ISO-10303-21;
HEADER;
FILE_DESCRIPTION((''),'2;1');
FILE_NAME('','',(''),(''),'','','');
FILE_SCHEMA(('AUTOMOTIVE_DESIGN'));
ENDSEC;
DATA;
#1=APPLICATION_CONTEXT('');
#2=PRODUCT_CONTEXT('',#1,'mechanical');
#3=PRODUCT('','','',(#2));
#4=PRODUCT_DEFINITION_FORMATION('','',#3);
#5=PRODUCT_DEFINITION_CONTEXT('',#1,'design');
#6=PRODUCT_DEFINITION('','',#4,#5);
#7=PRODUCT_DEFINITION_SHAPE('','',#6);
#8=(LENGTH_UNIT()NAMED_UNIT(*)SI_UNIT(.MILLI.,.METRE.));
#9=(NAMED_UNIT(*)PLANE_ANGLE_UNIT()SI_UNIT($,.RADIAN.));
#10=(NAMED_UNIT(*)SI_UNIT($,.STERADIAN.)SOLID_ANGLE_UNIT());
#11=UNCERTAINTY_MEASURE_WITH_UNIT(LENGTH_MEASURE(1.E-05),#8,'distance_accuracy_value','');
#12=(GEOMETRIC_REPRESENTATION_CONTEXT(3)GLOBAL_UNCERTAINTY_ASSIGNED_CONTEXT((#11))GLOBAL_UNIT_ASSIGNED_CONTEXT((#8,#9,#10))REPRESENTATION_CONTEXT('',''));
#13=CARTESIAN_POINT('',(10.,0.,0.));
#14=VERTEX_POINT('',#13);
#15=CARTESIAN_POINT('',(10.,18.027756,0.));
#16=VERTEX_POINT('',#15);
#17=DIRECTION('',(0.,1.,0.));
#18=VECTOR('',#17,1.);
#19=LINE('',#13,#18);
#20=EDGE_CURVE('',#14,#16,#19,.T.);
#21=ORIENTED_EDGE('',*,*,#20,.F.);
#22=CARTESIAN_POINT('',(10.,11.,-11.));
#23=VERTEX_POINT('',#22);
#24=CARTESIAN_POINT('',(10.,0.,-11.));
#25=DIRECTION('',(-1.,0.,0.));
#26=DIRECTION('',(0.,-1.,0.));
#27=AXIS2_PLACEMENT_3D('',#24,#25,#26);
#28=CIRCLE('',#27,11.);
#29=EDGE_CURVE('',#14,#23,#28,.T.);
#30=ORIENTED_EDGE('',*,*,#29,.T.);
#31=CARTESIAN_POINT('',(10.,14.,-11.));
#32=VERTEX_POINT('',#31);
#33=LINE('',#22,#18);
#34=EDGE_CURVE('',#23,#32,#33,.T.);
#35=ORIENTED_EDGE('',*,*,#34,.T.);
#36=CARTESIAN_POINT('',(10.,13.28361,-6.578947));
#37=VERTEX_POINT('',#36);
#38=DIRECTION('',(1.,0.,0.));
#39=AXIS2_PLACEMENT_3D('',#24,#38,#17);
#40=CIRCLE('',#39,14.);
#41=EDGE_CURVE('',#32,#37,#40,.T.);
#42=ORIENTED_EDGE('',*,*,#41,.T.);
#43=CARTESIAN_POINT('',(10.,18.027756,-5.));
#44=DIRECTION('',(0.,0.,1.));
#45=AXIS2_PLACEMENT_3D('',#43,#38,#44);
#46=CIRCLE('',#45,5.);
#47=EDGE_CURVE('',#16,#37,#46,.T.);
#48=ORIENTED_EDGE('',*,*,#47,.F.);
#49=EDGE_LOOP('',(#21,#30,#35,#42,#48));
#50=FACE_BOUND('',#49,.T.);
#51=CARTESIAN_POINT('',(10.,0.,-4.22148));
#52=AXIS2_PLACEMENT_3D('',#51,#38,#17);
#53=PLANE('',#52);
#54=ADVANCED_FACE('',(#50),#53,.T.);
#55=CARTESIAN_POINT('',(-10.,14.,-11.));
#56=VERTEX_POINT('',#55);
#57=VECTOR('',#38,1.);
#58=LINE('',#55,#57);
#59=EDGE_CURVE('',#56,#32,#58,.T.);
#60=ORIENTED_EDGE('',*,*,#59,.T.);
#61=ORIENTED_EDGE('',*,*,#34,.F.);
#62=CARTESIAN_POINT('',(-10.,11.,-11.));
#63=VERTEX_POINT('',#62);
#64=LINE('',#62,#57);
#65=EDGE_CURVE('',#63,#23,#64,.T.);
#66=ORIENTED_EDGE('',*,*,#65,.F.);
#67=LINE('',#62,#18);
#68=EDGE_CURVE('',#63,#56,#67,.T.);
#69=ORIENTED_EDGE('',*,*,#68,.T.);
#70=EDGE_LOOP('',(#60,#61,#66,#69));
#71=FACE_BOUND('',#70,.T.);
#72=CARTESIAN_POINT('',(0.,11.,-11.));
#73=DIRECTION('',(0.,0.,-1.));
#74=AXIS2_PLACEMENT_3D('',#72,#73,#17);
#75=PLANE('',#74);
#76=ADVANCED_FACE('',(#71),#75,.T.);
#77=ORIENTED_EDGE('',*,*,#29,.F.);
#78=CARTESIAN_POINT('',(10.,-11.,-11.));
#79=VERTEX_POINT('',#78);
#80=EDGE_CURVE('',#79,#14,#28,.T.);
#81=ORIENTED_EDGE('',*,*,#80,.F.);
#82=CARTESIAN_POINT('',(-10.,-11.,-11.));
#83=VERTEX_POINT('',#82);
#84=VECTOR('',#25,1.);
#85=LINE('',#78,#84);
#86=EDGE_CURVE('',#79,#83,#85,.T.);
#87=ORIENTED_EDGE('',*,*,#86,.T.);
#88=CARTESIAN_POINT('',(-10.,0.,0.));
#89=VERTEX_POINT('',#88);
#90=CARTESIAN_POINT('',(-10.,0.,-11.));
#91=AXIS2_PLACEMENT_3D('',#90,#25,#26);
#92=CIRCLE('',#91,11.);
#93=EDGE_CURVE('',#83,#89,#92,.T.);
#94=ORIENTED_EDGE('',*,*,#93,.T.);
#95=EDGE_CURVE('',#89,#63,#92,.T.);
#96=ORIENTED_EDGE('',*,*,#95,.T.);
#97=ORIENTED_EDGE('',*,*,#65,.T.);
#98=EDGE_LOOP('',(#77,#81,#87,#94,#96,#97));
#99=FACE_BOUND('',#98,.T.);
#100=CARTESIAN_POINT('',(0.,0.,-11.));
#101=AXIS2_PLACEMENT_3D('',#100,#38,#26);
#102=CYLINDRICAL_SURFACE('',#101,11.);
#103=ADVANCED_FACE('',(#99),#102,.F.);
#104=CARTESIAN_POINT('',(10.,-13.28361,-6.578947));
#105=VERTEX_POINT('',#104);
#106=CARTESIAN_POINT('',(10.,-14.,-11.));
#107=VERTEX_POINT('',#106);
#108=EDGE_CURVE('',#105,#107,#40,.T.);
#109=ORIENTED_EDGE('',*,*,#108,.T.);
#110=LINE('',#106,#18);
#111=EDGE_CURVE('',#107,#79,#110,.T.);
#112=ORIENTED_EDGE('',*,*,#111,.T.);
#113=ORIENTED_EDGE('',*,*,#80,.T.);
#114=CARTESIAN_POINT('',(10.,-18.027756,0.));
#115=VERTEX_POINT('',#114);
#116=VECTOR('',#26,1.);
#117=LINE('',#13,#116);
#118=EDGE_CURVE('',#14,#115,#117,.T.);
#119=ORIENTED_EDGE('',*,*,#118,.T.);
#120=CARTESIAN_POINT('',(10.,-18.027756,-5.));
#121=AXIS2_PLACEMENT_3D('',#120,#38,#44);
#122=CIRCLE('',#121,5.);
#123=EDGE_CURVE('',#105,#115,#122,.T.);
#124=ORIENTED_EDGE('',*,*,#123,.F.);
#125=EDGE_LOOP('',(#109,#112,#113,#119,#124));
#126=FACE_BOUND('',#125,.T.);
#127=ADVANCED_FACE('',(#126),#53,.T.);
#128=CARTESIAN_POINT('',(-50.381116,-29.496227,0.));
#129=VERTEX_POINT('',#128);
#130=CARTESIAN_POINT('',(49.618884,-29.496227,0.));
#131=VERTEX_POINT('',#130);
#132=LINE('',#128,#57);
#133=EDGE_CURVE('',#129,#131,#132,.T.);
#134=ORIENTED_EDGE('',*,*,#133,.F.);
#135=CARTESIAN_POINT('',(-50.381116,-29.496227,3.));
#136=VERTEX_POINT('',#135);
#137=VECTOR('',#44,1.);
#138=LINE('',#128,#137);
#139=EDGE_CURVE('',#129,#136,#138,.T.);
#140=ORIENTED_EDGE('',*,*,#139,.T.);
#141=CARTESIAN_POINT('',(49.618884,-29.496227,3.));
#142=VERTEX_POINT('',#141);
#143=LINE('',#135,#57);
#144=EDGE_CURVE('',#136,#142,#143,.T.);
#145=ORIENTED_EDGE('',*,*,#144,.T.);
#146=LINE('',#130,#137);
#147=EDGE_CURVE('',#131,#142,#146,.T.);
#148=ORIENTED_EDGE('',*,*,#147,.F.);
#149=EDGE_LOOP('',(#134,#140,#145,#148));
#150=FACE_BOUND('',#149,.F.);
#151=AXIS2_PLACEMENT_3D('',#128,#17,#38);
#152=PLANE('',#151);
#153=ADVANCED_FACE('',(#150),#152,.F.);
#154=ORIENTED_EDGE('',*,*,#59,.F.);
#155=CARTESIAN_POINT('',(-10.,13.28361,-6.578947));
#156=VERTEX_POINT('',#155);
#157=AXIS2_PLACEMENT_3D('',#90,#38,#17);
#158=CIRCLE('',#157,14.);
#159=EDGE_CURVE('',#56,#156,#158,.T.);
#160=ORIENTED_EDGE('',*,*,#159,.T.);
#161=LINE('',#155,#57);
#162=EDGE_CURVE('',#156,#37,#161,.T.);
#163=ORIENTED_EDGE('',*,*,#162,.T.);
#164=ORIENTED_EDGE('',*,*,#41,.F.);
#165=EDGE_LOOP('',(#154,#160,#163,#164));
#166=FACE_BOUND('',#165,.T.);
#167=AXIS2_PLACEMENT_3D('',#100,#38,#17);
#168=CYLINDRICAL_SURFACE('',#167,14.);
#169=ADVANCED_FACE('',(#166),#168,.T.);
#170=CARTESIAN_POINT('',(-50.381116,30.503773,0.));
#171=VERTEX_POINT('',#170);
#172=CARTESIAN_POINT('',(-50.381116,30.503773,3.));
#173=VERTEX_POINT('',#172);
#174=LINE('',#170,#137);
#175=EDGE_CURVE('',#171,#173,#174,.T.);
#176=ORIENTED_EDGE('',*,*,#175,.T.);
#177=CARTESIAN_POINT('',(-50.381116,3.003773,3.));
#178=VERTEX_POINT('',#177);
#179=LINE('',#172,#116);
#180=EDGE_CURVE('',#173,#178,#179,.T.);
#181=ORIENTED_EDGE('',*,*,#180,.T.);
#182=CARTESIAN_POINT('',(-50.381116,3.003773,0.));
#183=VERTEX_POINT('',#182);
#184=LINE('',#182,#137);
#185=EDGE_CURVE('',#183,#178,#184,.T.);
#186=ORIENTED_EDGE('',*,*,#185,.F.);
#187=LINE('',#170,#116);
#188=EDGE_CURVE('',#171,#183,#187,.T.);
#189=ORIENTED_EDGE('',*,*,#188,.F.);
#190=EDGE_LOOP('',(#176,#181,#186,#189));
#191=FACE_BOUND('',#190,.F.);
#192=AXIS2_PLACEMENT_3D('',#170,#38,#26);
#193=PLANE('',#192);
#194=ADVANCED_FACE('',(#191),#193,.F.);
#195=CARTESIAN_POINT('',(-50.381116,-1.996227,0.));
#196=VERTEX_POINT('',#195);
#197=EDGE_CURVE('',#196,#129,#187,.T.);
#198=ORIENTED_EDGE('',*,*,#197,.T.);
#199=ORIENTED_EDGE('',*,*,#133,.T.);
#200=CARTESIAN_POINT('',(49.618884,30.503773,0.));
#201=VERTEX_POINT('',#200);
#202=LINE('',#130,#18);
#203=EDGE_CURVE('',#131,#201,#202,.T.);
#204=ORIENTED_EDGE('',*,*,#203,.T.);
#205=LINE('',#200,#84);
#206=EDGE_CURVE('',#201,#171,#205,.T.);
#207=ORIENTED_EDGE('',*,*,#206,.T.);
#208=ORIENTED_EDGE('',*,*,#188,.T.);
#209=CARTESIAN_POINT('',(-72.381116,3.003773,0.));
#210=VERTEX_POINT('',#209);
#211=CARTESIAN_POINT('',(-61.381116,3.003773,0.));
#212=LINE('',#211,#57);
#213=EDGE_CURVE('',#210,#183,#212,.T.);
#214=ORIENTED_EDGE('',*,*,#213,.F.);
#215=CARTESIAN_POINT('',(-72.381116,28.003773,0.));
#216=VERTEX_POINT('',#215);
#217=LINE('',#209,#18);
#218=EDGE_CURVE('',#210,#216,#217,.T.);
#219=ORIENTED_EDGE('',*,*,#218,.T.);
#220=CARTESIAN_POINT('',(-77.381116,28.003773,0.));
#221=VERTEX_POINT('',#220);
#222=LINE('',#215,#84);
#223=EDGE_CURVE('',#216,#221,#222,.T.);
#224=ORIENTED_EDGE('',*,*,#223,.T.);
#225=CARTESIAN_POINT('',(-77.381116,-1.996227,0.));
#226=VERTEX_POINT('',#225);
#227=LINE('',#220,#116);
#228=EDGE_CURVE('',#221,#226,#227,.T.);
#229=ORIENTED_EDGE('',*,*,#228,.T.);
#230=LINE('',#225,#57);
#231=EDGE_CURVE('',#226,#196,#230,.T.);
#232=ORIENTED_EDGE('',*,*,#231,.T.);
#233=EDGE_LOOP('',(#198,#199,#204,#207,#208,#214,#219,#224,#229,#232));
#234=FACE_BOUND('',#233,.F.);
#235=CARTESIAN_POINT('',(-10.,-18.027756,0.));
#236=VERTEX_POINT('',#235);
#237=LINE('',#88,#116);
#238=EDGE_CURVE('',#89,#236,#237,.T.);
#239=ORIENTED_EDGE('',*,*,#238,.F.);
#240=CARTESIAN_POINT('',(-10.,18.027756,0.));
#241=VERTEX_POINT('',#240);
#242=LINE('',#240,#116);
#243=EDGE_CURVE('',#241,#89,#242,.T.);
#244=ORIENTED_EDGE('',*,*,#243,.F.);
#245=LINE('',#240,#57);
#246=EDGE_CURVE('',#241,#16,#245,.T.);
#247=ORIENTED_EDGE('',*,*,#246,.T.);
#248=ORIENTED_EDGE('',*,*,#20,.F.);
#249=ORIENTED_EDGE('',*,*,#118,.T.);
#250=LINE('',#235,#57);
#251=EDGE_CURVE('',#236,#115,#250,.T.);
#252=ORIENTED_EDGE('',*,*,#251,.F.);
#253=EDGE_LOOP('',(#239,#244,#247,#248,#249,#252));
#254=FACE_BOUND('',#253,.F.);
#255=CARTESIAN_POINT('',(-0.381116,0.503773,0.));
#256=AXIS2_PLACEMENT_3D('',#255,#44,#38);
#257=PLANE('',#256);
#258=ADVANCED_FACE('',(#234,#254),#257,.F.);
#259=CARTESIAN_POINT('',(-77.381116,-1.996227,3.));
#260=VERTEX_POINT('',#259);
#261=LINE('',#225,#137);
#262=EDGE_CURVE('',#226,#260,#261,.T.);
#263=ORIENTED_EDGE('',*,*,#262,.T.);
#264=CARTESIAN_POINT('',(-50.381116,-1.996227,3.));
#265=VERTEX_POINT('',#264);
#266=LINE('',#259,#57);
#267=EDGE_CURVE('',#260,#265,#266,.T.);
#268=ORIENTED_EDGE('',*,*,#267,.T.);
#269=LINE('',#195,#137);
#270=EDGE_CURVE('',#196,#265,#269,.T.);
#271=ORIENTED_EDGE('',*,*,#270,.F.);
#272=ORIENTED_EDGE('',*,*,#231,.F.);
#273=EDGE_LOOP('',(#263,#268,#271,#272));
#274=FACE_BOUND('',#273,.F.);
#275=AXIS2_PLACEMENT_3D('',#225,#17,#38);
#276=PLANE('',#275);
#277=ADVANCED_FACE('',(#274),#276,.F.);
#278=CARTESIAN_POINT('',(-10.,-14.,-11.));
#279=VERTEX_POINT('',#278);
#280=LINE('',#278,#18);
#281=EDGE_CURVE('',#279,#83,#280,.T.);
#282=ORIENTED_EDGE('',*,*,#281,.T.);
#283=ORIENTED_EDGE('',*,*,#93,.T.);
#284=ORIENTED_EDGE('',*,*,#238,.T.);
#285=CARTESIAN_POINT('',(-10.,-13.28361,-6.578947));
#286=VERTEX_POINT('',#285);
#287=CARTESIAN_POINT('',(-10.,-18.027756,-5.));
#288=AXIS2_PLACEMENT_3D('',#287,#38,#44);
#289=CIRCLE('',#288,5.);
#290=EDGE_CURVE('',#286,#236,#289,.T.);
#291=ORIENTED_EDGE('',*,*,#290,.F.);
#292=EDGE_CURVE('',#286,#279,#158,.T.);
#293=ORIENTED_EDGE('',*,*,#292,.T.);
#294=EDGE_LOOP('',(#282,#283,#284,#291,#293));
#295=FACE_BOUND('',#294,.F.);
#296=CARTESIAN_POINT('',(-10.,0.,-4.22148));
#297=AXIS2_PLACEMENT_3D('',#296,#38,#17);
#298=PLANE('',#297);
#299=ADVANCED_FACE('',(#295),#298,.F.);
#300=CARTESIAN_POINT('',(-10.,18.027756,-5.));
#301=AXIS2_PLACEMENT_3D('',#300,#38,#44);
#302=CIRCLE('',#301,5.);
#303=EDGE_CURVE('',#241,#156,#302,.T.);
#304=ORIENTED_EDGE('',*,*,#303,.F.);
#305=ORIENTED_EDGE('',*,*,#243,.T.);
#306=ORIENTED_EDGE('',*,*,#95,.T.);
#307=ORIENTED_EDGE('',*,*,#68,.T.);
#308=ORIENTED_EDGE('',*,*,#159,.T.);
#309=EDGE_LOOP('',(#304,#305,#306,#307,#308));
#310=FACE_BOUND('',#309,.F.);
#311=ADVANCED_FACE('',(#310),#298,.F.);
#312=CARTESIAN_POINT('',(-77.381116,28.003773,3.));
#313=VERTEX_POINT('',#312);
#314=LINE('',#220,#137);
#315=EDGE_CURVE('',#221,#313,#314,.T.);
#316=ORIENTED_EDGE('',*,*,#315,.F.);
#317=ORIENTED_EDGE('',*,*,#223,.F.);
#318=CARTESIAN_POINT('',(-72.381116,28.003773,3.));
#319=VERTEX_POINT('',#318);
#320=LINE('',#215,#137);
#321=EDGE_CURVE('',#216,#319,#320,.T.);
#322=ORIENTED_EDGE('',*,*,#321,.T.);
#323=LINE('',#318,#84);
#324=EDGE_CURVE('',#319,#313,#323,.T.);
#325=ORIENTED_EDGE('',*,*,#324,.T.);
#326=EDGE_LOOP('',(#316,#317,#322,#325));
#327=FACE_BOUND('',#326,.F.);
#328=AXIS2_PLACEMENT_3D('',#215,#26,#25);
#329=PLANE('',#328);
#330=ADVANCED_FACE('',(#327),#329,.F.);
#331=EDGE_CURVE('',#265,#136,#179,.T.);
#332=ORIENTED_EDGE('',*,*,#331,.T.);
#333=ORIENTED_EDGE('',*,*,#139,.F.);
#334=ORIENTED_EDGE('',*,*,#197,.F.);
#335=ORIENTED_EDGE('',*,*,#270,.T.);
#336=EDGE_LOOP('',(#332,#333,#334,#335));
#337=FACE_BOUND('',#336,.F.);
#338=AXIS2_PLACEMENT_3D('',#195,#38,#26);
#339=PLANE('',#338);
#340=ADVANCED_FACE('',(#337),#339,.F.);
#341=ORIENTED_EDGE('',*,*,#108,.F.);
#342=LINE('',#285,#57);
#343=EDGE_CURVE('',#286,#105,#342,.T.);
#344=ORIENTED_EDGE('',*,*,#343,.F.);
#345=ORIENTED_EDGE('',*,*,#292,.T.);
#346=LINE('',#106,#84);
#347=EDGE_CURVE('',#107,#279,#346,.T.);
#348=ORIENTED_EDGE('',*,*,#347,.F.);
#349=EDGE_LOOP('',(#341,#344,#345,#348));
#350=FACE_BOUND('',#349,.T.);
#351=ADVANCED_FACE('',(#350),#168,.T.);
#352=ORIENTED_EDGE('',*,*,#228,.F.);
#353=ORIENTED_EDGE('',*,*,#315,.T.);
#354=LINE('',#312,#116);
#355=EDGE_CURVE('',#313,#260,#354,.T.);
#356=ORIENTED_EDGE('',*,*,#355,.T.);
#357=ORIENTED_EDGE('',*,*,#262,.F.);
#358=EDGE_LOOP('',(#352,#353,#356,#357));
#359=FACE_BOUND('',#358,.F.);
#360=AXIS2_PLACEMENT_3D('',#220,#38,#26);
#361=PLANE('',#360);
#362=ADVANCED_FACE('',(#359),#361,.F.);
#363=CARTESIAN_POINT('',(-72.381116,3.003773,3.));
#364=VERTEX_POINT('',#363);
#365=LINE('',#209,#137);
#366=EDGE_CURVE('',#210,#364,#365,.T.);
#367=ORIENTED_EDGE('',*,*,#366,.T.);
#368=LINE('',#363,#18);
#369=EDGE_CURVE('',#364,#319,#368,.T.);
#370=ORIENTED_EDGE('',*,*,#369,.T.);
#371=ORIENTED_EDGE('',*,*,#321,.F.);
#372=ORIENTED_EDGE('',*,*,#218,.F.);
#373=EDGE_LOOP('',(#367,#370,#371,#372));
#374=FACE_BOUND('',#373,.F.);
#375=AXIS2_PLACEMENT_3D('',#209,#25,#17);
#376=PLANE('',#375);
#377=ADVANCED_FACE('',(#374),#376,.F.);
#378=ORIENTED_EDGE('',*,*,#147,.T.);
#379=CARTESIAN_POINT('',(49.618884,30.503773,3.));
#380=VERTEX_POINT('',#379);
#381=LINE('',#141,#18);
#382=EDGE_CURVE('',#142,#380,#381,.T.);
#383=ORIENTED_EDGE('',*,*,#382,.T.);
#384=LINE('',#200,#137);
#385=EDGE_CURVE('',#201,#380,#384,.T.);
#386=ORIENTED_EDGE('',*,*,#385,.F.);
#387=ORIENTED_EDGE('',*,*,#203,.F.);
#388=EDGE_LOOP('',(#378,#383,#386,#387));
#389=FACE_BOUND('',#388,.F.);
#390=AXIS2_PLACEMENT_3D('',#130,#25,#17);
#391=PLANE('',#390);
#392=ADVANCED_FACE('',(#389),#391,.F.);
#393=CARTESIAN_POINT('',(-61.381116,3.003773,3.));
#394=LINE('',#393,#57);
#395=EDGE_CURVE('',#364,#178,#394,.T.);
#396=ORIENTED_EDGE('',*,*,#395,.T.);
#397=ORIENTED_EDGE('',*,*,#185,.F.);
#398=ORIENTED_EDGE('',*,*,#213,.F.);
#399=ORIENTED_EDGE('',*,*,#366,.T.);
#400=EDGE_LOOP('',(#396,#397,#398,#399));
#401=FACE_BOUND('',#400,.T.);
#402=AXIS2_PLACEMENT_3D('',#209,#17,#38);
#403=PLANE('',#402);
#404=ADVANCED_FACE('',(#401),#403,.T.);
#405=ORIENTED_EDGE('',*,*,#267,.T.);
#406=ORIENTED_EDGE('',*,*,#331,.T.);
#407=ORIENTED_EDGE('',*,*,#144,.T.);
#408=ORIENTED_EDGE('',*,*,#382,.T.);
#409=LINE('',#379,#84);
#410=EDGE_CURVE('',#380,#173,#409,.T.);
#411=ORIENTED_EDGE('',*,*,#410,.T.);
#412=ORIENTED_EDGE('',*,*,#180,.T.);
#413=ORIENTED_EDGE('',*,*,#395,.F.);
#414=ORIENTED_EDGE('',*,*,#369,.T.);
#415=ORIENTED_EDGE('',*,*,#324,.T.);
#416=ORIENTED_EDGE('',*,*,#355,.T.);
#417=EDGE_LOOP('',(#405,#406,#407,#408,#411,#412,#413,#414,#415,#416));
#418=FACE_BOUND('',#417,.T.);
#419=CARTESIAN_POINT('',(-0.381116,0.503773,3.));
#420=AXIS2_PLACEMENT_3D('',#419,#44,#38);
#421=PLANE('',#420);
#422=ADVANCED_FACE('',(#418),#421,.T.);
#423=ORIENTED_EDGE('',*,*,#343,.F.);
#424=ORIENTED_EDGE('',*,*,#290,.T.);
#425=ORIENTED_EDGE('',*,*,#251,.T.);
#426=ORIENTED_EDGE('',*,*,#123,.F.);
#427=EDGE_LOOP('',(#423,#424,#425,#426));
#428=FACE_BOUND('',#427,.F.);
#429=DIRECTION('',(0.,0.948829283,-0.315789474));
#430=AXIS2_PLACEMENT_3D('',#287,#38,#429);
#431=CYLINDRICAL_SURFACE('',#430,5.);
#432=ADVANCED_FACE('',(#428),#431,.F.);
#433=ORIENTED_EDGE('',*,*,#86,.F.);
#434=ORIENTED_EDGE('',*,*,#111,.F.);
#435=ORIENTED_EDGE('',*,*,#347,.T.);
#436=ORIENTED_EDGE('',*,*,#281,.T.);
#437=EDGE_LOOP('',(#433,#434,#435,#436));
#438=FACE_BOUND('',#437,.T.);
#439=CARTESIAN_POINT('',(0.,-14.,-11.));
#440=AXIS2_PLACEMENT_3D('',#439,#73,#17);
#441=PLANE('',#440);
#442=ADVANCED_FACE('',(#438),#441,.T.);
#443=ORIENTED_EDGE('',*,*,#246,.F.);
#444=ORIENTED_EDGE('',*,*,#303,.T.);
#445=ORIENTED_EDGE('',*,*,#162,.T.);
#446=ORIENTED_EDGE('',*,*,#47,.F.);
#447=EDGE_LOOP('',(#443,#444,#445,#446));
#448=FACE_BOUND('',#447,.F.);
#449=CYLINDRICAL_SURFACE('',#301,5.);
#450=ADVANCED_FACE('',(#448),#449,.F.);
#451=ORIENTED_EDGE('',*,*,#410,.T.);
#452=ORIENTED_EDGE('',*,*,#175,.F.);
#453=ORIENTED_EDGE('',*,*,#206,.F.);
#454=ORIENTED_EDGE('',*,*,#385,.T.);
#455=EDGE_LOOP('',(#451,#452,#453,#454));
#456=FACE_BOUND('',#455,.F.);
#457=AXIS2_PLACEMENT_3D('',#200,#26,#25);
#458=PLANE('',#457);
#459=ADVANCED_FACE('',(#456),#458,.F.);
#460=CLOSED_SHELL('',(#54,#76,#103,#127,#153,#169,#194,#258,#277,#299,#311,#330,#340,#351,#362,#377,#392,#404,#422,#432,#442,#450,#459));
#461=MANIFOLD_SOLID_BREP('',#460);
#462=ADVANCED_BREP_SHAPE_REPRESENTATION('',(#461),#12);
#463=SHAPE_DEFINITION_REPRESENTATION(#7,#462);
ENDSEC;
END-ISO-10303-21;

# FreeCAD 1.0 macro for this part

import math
import FreeCAD as App
import Part
import Sketcher


def edges_at(feature, points):
    """Names of the edges that pass closest to the given points."""
    edges = feature.Shape.Edges
    near = lambda p: min(range(len(edges)), key=lambda i: edges[i].distToShape(Part.Vertex(*p))[0])
    return sorted({f"Edge{near(p) + 1}" for p in points})

doc = App.newDocument("Part")
body = doc.addObject("PartDesign::Body", "Body")

# Sketch on XY plane
sketch1 = doc.addObject("Sketcher::SketchObject", "Sketch")
body.addObject(sketch1)
sketch1.AttachmentSupport = (doc.XY_Plane, [""])
sketch1.MapMode = "FlatFace"
sketch1.addGeometry([
    Part.LineSegment(App.Vector(49.618884, 30.503773, 0), App.Vector(-50.381116, 30.503773, 0)),  # 0
    Part.LineSegment(App.Vector(-50.381116, 30.503773, 0), App.Vector(-50.381116, 3.003773, 0)),  # 1
    Part.LineSegment(App.Vector(-50.381116, 3.003773, 0), App.Vector(-72.381116, 3.003773, 0)),  # 2
    Part.LineSegment(App.Vector(-72.381116, 3.003773, 0), App.Vector(-72.381116, 28.003773, 0)),  # 3
    Part.LineSegment(App.Vector(-72.381116, 28.003773, 0), App.Vector(-77.381116, 28.003773, 0)),  # 4
    Part.LineSegment(App.Vector(-77.381116, 28.003773, 0), App.Vector(-77.381116, -1.996227, 0)),  # 5
    Part.LineSegment(App.Vector(-77.381116, -1.996227, 0), App.Vector(-50.381116, -1.996227, 0)),  # 6
    Part.LineSegment(App.Vector(-50.381116, -1.996227, 0), App.Vector(-50.381116, -29.496227, 0)),  # 7
    Part.LineSegment(App.Vector(-50.381116, -29.496227, 0), App.Vector(49.618884, -29.496227, 0)),  # 8
    Part.LineSegment(App.Vector(49.618884, -29.496227, 0), App.Vector(49.618884, 30.503773, 0)),  # 9
], False)
sketch1.addConstraint([
    Sketcher.Constraint("Coincident", 0, 2, 1, 1),
    Sketcher.Constraint("Coincident", 1, 2, 2, 1),
    Sketcher.Constraint("Coincident", 2, 2, 3, 1),
    Sketcher.Constraint("Coincident", 3, 2, 4, 1),
    Sketcher.Constraint("Coincident", 4, 2, 5, 1),
    Sketcher.Constraint("Coincident", 5, 2, 6, 1),
    Sketcher.Constraint("Coincident", 6, 2, 7, 1),
    Sketcher.Constraint("Coincident", 7, 2, 8, 1),
    Sketcher.Constraint("Coincident", 8, 2, 9, 1),
    Sketcher.Constraint("Coincident", 9, 2, 0, 1),
    Sketcher.Constraint("Horizontal", 0),
    Sketcher.Constraint("Vertical", 1),
    Sketcher.Constraint("Horizontal", 2),
    Sketcher.Constraint("Vertical", 3),
    Sketcher.Constraint("Horizontal", 4),
    Sketcher.Constraint("Vertical", 5),
    Sketcher.Constraint("Horizontal", 6),
    Sketcher.Constraint("Vertical", 7),
    Sketcher.Constraint("Horizontal", 8),
    Sketcher.Constraint("Vertical", 9),
    Sketcher.Constraint("Vertical", 1, 2, 6, 2),
    Sketcher.Constraint("Equal", 1, 7),
    Sketcher.Constraint("DistanceX", 0, 2, 0, 1, 100.0),
    Sketcher.Constraint("DistanceX", 2, 2, 2, 1, 22.0),
    Sketcher.Constraint("DistanceX", 4, 2, 4, 1, 5.0),
    Sketcher.Constraint("DistanceY", 3, 1, 3, 2, 25.0),
    Sketcher.Constraint("DistanceY", 5, 2, 5, 1, 30.0),
    Sketcher.Constraint("DistanceY", 9, 1, 9, 2, 60.0),
    Sketcher.Constraint("DistanceX", 0, 2, -1, 1, 50.381116),
    Sketcher.Constraint("DistanceY", -1, 1, 0, 2, 30.503773),
])
pad1 = doc.addObject("PartDesign::Pad", "Pad")
body.addObject(pad1)
pad1.Profile = sketch1
pad1.Length = 3

# Sketch on YZ plane
sketch2 = doc.addObject("Sketcher::SketchObject", "Sketch001")
body.addObject(sketch2)
sketch2.AttachmentSupport = (doc.YZ_Plane, [""])
sketch2.MapMode = "FlatFace"
sketch2.addGeometry([
    Part.ArcOfCircle(Part.Circle(App.Vector(0, -11, 0), App.Vector(0, 0, 1), 11), math.radians(0), math.radians(180)),
    Part.LineSegment(App.Vector(11, -11, 0), App.Vector(14, -11, 0)),
    Part.ArcOfCircle(Part.Circle(App.Vector(0, -11, 0), App.Vector(0, 0, 1), 14), math.radians(0), math.radians(180)),
    Part.LineSegment(App.Vector(-14, -11, 0), App.Vector(-11, -11, 0)),
], False)
sketch2.addConstraint([
    Sketcher.Constraint("Coincident", 0, 1, 1, 1),
    Sketcher.Constraint("Coincident", 1, 2, 2, 1),
    Sketcher.Constraint("Coincident", 2, 2, 3, 1),
    Sketcher.Constraint("Coincident", 3, 2, 0, 2),
    Sketcher.Constraint("Horizontal", 1),
    Sketcher.Constraint("Horizontal", 3),
    Sketcher.Constraint("Coincident", 2, 3, 0, 3),
    Sketcher.Constraint("Symmetric", 1, 2, 2, 2, -2),
    Sketcher.Constraint("Horizontal", 2, 3, 0, 1),
    Sketcher.Constraint("Radius", 0, 11.0),
    Sketcher.Constraint("Radius", 2, 14.0),
    Sketcher.Constraint("DistanceY", 0, 3, -1, 1, 11.0),
])
pad2 = doc.addObject("PartDesign::Pad", "Pad001")
body.addObject(pad2)
pad2.Profile = sketch2
pad2.Length = 20
pad2.Midplane = True
doc.recompute()

fillet = doc.addObject("PartDesign::Fillet", "Fillet")
body.addObject(fillet)
fillet.Base = (pad2, edges_at(pad2, [(0, -8.66, 0), (0, 8.66, 0)]))
fillet.Radius = 5

doc.recompute()
